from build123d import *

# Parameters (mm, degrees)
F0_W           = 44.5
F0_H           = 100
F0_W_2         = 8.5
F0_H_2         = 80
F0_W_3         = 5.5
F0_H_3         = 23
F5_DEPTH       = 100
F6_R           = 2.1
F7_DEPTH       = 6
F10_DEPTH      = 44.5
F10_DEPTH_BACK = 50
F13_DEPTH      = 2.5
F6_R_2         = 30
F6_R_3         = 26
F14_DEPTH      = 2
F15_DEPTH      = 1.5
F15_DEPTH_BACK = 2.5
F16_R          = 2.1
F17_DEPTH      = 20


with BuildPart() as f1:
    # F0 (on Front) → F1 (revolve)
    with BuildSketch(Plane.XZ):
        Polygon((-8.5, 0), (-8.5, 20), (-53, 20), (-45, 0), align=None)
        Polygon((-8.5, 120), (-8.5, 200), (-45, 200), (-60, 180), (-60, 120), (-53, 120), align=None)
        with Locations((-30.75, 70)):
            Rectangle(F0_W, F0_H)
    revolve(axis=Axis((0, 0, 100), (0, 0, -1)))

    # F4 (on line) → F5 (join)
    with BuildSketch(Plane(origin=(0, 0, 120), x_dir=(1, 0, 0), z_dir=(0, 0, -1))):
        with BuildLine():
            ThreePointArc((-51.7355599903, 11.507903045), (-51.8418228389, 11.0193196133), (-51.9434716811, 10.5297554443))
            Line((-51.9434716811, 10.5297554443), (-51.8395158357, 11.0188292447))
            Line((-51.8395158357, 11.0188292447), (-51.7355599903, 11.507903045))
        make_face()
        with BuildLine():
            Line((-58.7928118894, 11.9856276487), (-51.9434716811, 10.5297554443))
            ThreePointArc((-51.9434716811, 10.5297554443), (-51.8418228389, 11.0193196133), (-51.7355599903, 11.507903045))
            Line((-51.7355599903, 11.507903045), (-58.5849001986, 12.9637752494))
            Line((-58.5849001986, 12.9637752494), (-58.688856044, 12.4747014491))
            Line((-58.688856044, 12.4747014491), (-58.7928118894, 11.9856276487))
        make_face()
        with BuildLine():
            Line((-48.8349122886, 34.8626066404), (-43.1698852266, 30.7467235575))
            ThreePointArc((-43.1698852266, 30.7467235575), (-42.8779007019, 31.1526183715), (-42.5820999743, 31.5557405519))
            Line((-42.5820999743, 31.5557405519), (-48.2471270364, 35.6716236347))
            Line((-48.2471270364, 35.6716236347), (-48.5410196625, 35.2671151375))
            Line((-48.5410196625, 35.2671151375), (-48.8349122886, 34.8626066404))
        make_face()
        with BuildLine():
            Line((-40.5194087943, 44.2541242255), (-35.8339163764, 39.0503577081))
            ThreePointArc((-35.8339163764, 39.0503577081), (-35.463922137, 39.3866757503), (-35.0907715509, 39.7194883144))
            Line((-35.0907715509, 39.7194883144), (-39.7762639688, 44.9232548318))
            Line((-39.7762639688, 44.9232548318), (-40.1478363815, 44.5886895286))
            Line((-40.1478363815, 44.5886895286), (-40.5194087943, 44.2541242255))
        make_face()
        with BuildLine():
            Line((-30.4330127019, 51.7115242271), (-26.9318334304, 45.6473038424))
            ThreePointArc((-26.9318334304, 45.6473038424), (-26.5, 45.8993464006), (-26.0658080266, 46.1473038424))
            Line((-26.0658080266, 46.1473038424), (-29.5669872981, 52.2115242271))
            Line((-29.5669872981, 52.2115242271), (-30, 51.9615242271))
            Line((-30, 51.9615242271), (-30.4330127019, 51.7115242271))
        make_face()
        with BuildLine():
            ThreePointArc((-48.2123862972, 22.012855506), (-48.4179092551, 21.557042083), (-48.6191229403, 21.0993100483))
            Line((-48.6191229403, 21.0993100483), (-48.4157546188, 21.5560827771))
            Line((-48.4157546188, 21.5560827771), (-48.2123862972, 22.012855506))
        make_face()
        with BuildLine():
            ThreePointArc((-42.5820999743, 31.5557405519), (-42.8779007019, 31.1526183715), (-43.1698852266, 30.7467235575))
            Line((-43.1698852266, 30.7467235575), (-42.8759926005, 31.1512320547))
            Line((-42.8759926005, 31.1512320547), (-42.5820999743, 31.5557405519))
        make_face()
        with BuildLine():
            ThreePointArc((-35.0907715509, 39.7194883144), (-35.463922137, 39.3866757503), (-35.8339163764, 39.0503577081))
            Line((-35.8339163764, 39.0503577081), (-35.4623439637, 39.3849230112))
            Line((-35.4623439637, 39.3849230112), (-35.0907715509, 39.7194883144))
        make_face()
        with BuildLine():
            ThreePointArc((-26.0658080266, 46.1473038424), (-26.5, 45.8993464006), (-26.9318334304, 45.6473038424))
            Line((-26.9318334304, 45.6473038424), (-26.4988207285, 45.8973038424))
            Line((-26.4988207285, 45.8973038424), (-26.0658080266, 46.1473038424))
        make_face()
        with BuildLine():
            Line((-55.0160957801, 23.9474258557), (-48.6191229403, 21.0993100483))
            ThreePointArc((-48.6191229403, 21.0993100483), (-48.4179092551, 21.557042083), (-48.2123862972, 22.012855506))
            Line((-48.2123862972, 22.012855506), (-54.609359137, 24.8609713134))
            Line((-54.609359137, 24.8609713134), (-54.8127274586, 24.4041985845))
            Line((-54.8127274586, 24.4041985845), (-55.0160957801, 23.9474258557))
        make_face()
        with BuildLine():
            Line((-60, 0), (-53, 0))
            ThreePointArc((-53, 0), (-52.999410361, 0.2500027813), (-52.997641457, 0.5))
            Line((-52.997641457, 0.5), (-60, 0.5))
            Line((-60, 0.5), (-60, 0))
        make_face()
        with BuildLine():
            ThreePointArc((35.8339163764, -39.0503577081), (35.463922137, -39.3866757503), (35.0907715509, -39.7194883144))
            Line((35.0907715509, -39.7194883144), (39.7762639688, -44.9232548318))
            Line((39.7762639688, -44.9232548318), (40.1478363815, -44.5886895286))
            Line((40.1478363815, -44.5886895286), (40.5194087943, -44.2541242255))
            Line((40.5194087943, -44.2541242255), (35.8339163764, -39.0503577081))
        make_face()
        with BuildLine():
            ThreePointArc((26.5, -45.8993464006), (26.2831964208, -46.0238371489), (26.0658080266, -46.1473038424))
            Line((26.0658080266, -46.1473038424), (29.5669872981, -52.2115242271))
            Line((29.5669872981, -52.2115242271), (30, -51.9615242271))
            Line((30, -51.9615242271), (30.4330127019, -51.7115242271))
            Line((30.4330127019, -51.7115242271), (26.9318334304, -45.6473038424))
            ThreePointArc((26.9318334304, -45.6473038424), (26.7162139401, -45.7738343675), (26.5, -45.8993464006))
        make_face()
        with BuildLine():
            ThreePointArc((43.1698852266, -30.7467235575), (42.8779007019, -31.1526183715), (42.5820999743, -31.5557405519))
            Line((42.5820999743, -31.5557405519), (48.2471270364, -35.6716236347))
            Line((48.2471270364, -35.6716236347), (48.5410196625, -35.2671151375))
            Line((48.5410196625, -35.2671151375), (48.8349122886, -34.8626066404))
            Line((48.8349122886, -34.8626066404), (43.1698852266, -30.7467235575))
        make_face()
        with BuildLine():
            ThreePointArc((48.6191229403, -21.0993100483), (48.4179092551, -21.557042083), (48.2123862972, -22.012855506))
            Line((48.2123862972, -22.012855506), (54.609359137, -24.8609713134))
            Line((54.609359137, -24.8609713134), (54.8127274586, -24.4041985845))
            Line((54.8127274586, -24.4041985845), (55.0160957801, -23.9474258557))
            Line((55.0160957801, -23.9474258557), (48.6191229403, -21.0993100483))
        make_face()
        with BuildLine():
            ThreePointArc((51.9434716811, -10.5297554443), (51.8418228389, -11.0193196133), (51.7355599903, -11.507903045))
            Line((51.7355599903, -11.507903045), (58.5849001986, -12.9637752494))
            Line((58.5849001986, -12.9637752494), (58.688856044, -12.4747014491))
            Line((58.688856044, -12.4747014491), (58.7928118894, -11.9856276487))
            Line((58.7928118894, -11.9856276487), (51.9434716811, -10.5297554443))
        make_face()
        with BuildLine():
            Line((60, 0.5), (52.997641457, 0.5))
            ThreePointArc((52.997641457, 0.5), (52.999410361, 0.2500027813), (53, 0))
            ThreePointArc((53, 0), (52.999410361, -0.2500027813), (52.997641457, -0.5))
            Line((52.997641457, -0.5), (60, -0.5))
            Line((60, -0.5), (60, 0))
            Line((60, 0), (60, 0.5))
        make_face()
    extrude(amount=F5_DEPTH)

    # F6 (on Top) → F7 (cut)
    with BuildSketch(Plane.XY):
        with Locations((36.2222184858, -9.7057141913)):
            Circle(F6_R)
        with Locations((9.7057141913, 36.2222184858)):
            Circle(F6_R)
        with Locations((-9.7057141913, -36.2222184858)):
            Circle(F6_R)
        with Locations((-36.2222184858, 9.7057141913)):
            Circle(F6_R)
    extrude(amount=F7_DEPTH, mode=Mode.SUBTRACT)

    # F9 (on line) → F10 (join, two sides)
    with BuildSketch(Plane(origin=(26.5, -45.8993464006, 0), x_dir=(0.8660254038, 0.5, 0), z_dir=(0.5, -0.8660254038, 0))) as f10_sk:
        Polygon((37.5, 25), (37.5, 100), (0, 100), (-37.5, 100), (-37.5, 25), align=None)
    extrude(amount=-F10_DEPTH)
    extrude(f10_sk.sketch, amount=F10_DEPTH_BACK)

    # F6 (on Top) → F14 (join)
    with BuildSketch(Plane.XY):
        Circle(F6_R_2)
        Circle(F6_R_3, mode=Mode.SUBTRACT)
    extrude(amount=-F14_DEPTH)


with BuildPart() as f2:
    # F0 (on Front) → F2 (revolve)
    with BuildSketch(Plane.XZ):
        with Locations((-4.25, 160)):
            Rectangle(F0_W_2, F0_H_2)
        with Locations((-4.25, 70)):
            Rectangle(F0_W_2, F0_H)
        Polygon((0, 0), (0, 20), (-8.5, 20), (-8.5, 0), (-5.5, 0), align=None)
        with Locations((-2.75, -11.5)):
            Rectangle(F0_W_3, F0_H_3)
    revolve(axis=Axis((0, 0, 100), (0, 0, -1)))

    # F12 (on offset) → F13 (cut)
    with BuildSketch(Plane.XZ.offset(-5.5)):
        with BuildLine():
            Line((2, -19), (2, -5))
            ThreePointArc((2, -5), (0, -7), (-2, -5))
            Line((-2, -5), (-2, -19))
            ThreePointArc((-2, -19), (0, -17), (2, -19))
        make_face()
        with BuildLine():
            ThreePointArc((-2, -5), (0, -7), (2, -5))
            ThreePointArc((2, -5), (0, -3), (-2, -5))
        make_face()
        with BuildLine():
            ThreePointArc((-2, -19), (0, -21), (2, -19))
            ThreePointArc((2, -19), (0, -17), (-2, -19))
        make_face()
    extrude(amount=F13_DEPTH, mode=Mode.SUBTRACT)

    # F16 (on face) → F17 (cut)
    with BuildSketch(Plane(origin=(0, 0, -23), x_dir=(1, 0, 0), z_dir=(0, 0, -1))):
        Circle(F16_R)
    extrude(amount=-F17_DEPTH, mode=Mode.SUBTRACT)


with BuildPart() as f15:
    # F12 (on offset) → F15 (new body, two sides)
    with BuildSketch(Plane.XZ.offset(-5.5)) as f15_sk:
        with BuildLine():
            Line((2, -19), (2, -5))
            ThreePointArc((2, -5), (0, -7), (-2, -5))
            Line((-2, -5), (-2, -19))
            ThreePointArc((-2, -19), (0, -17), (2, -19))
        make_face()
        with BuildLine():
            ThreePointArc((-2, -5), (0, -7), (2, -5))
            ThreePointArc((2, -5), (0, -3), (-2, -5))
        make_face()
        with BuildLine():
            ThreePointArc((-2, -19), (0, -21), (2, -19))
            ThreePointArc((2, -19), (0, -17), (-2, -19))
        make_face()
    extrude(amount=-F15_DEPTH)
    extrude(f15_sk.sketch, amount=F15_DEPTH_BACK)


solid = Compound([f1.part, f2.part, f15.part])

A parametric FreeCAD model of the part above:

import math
import FreeCAD as App
import Part
import Sketcher
Q = App.Units.Quantity

doc = App.newDocument("Part")
params = doc.addObject("Spreadsheet::Sheet", "Params")
for row, (alias, value) in enumerate([
    ("sketch1_width", "7 mm"),
    ("sketch1_height", "200 mm"),
    ("sketch1_height2", "60 mm"),
    ("sketch1_height3", "100 mm"),
    ("sketch1_length", "25 mm"),
    ("revolution_angle", "360 deg"),
    ("sketch2_radius", "52.999998 mm"),
    ("sketch2_width", "7 mm"),
    ("sketch2_height", "1 mm"),
    ("sketch2_length", "1 mm"),
    ("sketch2_length2", "0.5 mm"),
    ("pad1_length", "100 mm"),
    ("sketch3_diameter", "4.2 mm"),
    ("pocket1_length", "6 mm"),
    ("sketch4_width", "75 mm"),
    ("pad2_length", "44.5 mm"),
    ("pad2_length2", "50 mm"),
    ("sketch5_diameter", "60 mm"),
    ("sketch5_diameter2", "52 mm"),
    ("pad3_length", "2 mm"),
    ("sketch6_width", "3 mm"),
    ("sketch6_height", "200 mm"),
    ("sketch6_height2", "23 mm"),
    ("sketch6_width2", "5.5 mm"),
    ("revolution2_angle", "360 deg"),
    ("sketch7_radius", "2 mm"),
    ("sketch7_height", "14 mm"),
    ("pocket2_length", "2.5 mm"),
    ("sketch8_diameter", "4.2 mm"),
    ("pocket3_length", "20 mm"),
    ("sketch9_radius", "2 mm"),
    ("sketch9_height", "14 mm"),
    ("pad4_length", "1.5 mm"),
    ("pad4_length2", "2.5 mm"),
], start=1):
    params.set(f"A{row}", alias)
    params.set(f"B{row}", "=" + value)
    params.setAlias(f"B{row}", alias)

body = doc.addObject("PartDesign::Body", "Body")

# Sketch on XZ plane
sketch1 = doc.addObject("Sketcher::SketchObject", "Sketch")
body.addObject(sketch1)
sketch1.AttachmentSupport = (doc.XZ_Plane, [""])
sketch1.MapMode = "FlatFace"
sketch1.addGeometry(Part.LineSegment(App.Vector(-45, 0, 0), App.Vector(-8, 0, 0)), False)
sketch1.addGeometry(Part.LineSegment(App.Vector(-8, 0, 0), App.Vector(-8, 200, 0)), False)
sketch1.addGeometry(Part.LineSegment(App.Vector(-8, 200, 0), App.Vector(-45, 200, 0)), False)
sketch1.addGeometry(Part.LineSegment(App.Vector(-45, 200, 0), App.Vector(-60, 180, 0)), False)
sketch1.addGeometry(Part.LineSegment(App.Vector(-60, 180, 0), App.Vector(-60, 120, 0)), False)
sketch1.addGeometry(Part.LineSegment(App.Vector(-60, 120, 0), App.Vector(-53, 120, 0)), False)
sketch1.addGeometry(Part.LineSegment(App.Vector(-53, 120, 0), App.Vector(-53, 20, 0)), False)
sketch1.addGeometry(Part.LineSegment(App.Vector(-53, 20, 0), App.Vector(-45, 0, 0)), False)
sketch1.addConstraint(Sketcher.Constraint("Coincident", 0, 2, 1, 1))
sketch1.addConstraint(Sketcher.Constraint("Coincident", 1, 2, 2, 1))
sketch1.addConstraint(Sketcher.Constraint("Coincident", 2, 2, 3, 1))
sketch1.addConstraint(Sketcher.Constraint("Coincident", 3, 2, 4, 1))
sketch1.addConstraint(Sketcher.Constraint("Coincident", 4, 2, 5, 1))
sketch1.addConstraint(Sketcher.Constraint("Coincident", 5, 2, 6, 1))
sketch1.addConstraint(Sketcher.Constraint("Coincident", 6, 2, 7, 1))
sketch1.addConstraint(Sketcher.Constraint("Coincident", 7, 2, 0, 1))
sketch1.addConstraint(Sketcher.Constraint("Horizontal", 0))
sketch1.addConstraint(Sketcher.Constraint("Vertical", 1))
sketch1.addConstraint(Sketcher.Constraint("Horizontal", 2))
sketch1.addConstraint(Sketcher.Constraint("Vertical", 4))
sketch1.addConstraint(Sketcher.Constraint("Horizontal", 5))
sketch1.addConstraint(Sketcher.Constraint("Vertical", 6))
sketch1.addConstraint(Sketcher.Constraint("PointOnObject", 0, 2, -1))
sketch1.addConstraint(Sketcher.Constraint("Vertical", 2, 2, 7, 2))
sketch1.addConstraint(Sketcher.Constraint("DistanceX", 5, 1, 5, 2, Q("7 mm")))
sketch1.addConstraint(Sketcher.Constraint("DistanceY", 1, 1, 1, 2, Q("200 mm")))
sketch1.addConstraint(Sketcher.Constraint("DistanceY", 4, 2, 4, 1, Q("60 mm")))
sketch1.addConstraint(Sketcher.Constraint("DistanceY", 6, 2, 6, 1, Q("100 mm")))
sketch1.addConstraint(Sketcher.Constraint("Distance", 3, Q("25 mm")))
sketch1.addConstraint(Sketcher.Constraint("DistanceX", 0, 1, 0, 2, Q("36.5 mm")))
sketch1.addConstraint(Sketcher.Constraint("DistanceX", 2, 2, -1, 1, Q("45 mm")))
sketch1.addConstraint(Sketcher.Constraint("DistanceX", 3, 2, -1, 1, Q("60 mm")))
sketch1.setExpression("Constraints[16]", "Params.sketch1_width")
sketch1.setExpression("Constraints[17]", "Params.sketch1_height")
sketch1.setExpression("Constraints[18]", "Params.sketch1_height2")
sketch1.setExpression("Constraints[19]", "Params.sketch1_height3")
sketch1.setExpression("Constraints[20]", "Params.sketch1_length")
revolution = doc.addObject("PartDesign::Revolution", "Revolution")
body.addObject(revolution)
revolution.Profile = sketch1
revolution.ReferenceAxis = (sketch1, ["V_Axis"])
revolution.setExpression("Angle", "Params.revolution_angle")

# Sketch on XY plane
sketch2 = doc.addObject("Sketcher::SketchObject", "Sketch001")
body.addObject(sketch2)
sketch2.AttachmentSupport = (doc.XY_Plane, [""])
sketch2.MapMode = "FlatFace"
sketch2.AttachmentOffset = App.Placement(App.Vector(0, 0, 120), App.Rotation())
sketch2.addGeometry(Part.LineSegment(App.Vector(-51.94, -10.53, 0), App.Vector(-51.84, -11.02, 0)), False)
sketch2.addGeometry(Part.LineSegment(App.Vector(-51.84, -11.02, 0), App.Vector(-51.74, -11.51, 0)), False)
sketch2.addGeometry(Part.LineSegment(App.Vector(-51.74, -11.51, 0), App.Vector(-58.58, -12.96, 0)), False)
sketch2.addGeometry(Part.LineSegment(App.Vector(-58.58, -12.96, 0), App.Vector(-58.69, -12.47, 0)), False)
sketch2.addGeometry(Part.LineSegment(App.Vector(-58.69, -12.47, 0), App.Vector(-58.79, -11.99, 0)), False)
sketch2.addGeometry(Part.LineSegment(App.Vector(-58.79, -11.99, 0), App.Vector(-51.94, -10.53, 0)), False)
sketch2.addGeometry(Part.LineSegment(App.Vector(-48.83, -34.86, 0), App.Vector(-43.17, -30.75, 0)), False)
sketch2.addGeometry(Part.LineSegment(App.Vector(-43.17, -30.75, 0), App.Vector(-42.88, -31.15, 0)), False)
sketch2.addGeometry(Part.LineSegment(App.Vector(-42.88, -31.15, 0), App.Vector(-42.58, -31.56, 0)), False)
sketch2.addGeometry(Part.LineSegment(App.Vector(-42.58, -31.56, 0), App.Vector(-48.25, -35.67, 0)), False)
sketch2.addGeometry(Part.LineSegment(App.Vector(-48.25, -35.67, 0), App.Vector(-48.54, -35.27, 0)), False)
sketch2.addGeometry(Part.LineSegment(App.Vector(-48.54, -35.27, 0), App.Vector(-48.83, -34.86, 0)), False)
sketch2.addGeometry(Part.LineSegment(App.Vector(-40.52, -44.25, 0), App.Vector(-35.83, -39.05, 0)), False)
sketch2.addGeometry(Part.LineSegment(App.Vector(-35.83, -39.05, 0), App.Vector(-35.46, -39.38, 0)), False)
sketch2.addGeometry(Part.LineSegment(App.Vector(-35.46, -39.38, 0), App.Vector(-35.09, -39.72, 0)), False)
sketch2.addGeometry(Part.LineSegment(App.Vector(-35.09, -39.72, 0), App.Vector(-39.78, -44.92, 0)), False)
sketch2.addGeometry(Part.LineSegment(App.Vector(-39.78, -44.92, 0), App.Vector(-40.15, -44.59, 0)), False)
sketch2.addGeometry(Part.LineSegment(App.Vector(-40.15, -44.59, 0), App.Vector(-40.52, -44.25, 0)), False)
sketch2.addGeometry(Part.LineSegment(App.Vector(-30.43, -51.71, 0), App.Vector(-26.93, -45.65, 0)), False)
sketch2.addGeometry(Part.LineSegment(App.Vector(-26.93, -45.65, 0), App.Vector(-26.07, -46.15, 0)), False)
sketch2.addGeometry(Part.LineSegment(App.Vector(-26.07, -46.15, 0), App.Vector(-29.57, -52.21, 0)), False)
sketch2.addGeometry(Part.LineSegment(App.Vector(-29.57, -52.21, 0), App.Vector(-30.43, -51.71, 0)), False)
sketch2.addGeometry(Part.LineSegment(App.Vector(-48.62, -21.1, 0), App.Vector(-48.42, -21.56, 0)), False)
sketch2.addGeometry(Part.LineSegment(App.Vector(-48.42, -21.56, 0), App.Vector(-48.21, -22.01, 0)), False)
sketch2.addGeometry(Part.LineSegment(App.Vector(-48.21, -22.01, 0), App.Vector(-54.61, -24.86, 0)), False)
sketch2.addGeometry(Part.LineSegment(App.Vector(-54.61, -24.86, 0), App.Vector(-54.81, -24.4, 0)), False)
sketch2.addGeometry(Part.LineSegment(App.Vector(-54.81, -24.4, 0), App.Vector(-55.02, -23.95, 0)), False)
sketch2.addGeometry(Part.LineSegment(App.Vector(-55.02, -23.95, 0), App.Vector(-48.62, -21.1, 0)), False)
sketch2.addGeometry(Part.LineSegment(App.Vector(-60, 0, 0), App.Vector(-53, 0, 0)), False)
sketch2.addGeometry(Part.ArcOfCircle(Part.Circle(App.Vector(0, 0, 0), App.Vector(0, 0, 1), 53), math.radians(180), math.radians(180.54)), False)
sketch2.addGeometry(Part.LineSegment(App.Vector(-53, -0.5, 0), App.Vector(-60, -0.5, 0)), False)
sketch2.addGeometry(Part.LineSegment(App.Vector(-60, -0.5, 0), App.Vector(-60, 0, 0)), False)
sketch2.addGeometry(Part.ArcOfCircle(Part.Circle(App.Vector(0, 0, 0), App.Vector(0, 0, 1), 53), math.radians(47.46), math.radians(48.54)), False)
sketch2.addGeometry(Part.LineSegment(App.Vector(35.09, 39.72, 0), App.Vector(39.78, 44.92, 0)), False)
sketch2.addGeometry(Part.LineSegment(App.Vector(39.78, 44.92, 0), App.Vector(40.15, 44.59, 0)), False)
sketch2.addGeometry(Part.LineSegment(App.Vector(40.15, 44.59, 0), App.Vector(40.52, 44.25, 0)), False)
sketch2.addGeometry(Part.LineSegment(App.Vector(40.52, 44.25, 0), App.Vector(35.83, 39.05, 0)), False)
sketch2.addGeometry(Part.ArcOfCircle(Part.Circle(App.Vector(0, 0, 0), App.Vector(0, 0, 1), 53), math.radians(60), math.radians(60.54)), False)
sketch2.addGeometry(Part.LineSegment(App.Vector(26.07, 46.15, 0), App.Vector(29.57, 52.21, 0)), False)
sketch2.addGeometry(Part.LineSegment(App.Vector(29.57, 52.21, 0), App.Vector(30.43, 51.71, 0)), False)
sketch2.addGeometry(Part.LineSegment(App.Vector(30.43, 51.71, 0), App.Vector(26.93, 45.65, 0)), False)
sketch2.addGeometry(Part.ArcOfCircle(Part.Circle(App.Vector(0, 0, 0), App.Vector(0, 0, 1), 53), math.radians(59.46), math.radians(60)), False)
sketch2.addGeometry(Part.ArcOfCircle(Part.Circle(App.Vector(0, 0, 0), App.Vector(0, 0, 1), 53), math.radians(35.46), math.radians(36.54)), False)
sketch2.addGeometry(Part.LineSegment(App.Vector(42.58, 31.56, 0), App.Vector(48.25, 35.67, 0)), False)
sketch2.addGeometry(Part.LineSegment(App.Vector(48.25, 35.67, 0), App.Vector(48.54, 35.27, 0)), False)
sketch2.addGeometry(Part.LineSegment(App.Vector(48.54, 35.27, 0), App.Vector(48.83, 34.86, 0)), False)
sketch2.addGeometry(Part.LineSegment(App.Vector(48.83, 34.86, 0), App.Vector(43.17, 30.75, 0)), False)
sketch2.addGeometry(Part.ArcOfCircle(Part.Circle(App.Vector(0, 0, 0), App.Vector(0, 0, 1), 53), math.radians(23.46), math.radians(24.54)), False)
sketch2.addGeometry(Part.LineSegment(App.Vector(48.21, 22.01, 0), App.Vector(54.61, 24.86, 0)), False)
sketch2.addGeometry(Part.LineSegment(App.Vector(54.61, 24.86, 0), App.Vector(54.81, 24.4, 0)), False)
sketch2.addGeometry(Part.LineSegment(App.Vector(54.81, 24.4, 0), App.Vector(55.02, 23.95, 0)), False)
sketch2.addGeometry(Part.LineSegment(App.Vector(55.02, 23.95, 0), App.Vector(48.62, 21.1, 0)), False)
sketch2.addGeometry(Part.ArcOfCircle(Part.Circle(App.Vector(0, 0, 0), App.Vector(0, 0, 1), 53), math.radians(11.46), math.radians(12.54)), False)
sketch2.addGeometry(Part.LineSegment(App.Vector(51.74, 11.51, 0), App.Vector(58.58, 12.96, 0)), False)
sketch2.addGeometry(Part.LineSegment(App.Vector(58.58, 12.96, 0), App.Vector(58.69, 12.47, 0)), False)
sketch2.addGeometry(Part.LineSegment(App.Vector(58.69, 12.47, 0), App.Vector(58.79, 11.99, 0)), False)
sketch2.addGeometry(Part.LineSegment(App.Vector(58.79, 11.99, 0), App.Vector(51.94, 10.53, 0)), False)
sketch2.addGeometry(Part.LineSegment(App.Vector(60, -0.5, 0), App.Vector(53, -0.5, 0)), False)
sketch2.addGeometry(Part.ArcOfCircle(Part.Circle(App.Vector(0, 0, 0), App.Vector(0, 0, 1), 53), math.radians(-0.54), math.radians(0)), False)
sketch2.addGeometry(Part.ArcOfCircle(Part.Circle(App.Vector(0, 0, 0), App.Vector(0, 0, 1), 53), math.radians(0), math.radians(0.54)), False)
sketch2.addGeometry(Part.LineSegment(App.Vector(53, 0.5, 0), App.Vector(60, 0.5, 0)), False)
sketch2.addGeometry(Part.LineSegment(App.Vector(60, 0.5, 0), App.Vector(60, -0.5, 0)), False)
sketch2.addConstraint(Sketcher.Constraint("Coincident", 0, 2, 1, 1))
sketch2.addConstraint(Sketcher.Constraint("Coincident", 1, 2, 2, 1))
sketch2.addConstraint(Sketcher.Constraint("Coincident", 2, 2, 3, 1))
sketch2.addConstraint(Sketcher.Constraint("Coincident", 3, 2, 4, 1))
sketch2.addConstraint(Sketcher.Constraint("Coincident", 4, 2, 5, 1))
sketch2.addConstraint(Sketcher.Constraint("Coincident", 5, 2, 0, 1))
sketch2.addConstraint(Sketcher.Constraint("Coincident", 6, 2, 7, 1))
sketch2.addConstraint(Sketcher.Constraint("Coincident", 7, 2, 8, 1))
sketch2.addConstraint(Sketcher.Constraint("Coincident", 8, 2, 9, 1))
sketch2.addConstraint(Sketcher.Constraint("Coincident", 9, 2, 10, 1))
sketch2.addConstraint(Sketcher.Constraint("Coincident", 10, 2, 11, 1))
sketch2.addConstraint(Sketcher.Constraint("Coincident", 11, 2, 6, 1))
sketch2.addConstraint(Sketcher.Constraint("Coincident", 12, 2, 13, 1))
sketch2.addConstraint(Sketcher.Constraint("Coincident", 13, 2, 14, 1))
sketch2.addConstraint(Sketcher.Constraint("Coincident", 14, 2, 15, 1))
sketch2.addConstraint(Sketcher.Constraint("Coincident", 15, 2, 16, 1))
sketch2.addConstraint(Sketcher.Constraint("Coincident", 16, 2, 17, 1))
sketch2.addConstraint(Sketcher.Constraint("Coincident", 17, 2, 12, 1))
sketch2.addConstraint(Sketcher.Constraint("Coincident", 18, 2, 19, 1))
sketch2.addConstraint(Sketcher.Constraint("Coincident", 19, 2, 20, 1))
sketch2.addConstraint(Sketcher.Constraint("Coincident", 20, 2, 21, 1))
sketch2.addConstraint(Sketcher.Constraint("Coincident", 21, 2, 18, 1))
sketch2.addConstraint(Sketcher.Constraint("Coincident", 22, 2, 23, 1))
sketch2.addConstraint(Sketcher.Constraint("Coincident", 23, 2, 24, 1))
sketch2.addConstraint(Sketcher.Constraint("Coincident", 24, 2, 25, 1))
sketch2.addConstraint(Sketcher.Constraint("Coincident", 25, 2, 26, 1))
sketch2.addConstraint(Sketcher.Constraint("Coincident", 26, 2, 27, 1))
sketch2.addConstraint(Sketcher.Constraint("Coincident", 27, 2, 22, 1))
sketch2.addConstraint(Sketcher.Constraint("Coincident", 28, 2, 29, 1))
sketch2.addConstraint(Sketcher.Constraint("Coincident", 29, 2, 30, 1))
sketch2.addConstraint(Sketcher.Constraint("Coincident", 30, 2, 31, 1))
sketch2.addConstraint(Sketcher.Constraint("Coincident", 31, 2, 28, 1))
sketch2.addConstraint(Sketcher.Constraint("Coincident", 32, 2, 33, 1))
sketch2.addConstraint(Sketcher.Constraint("Coincident", 33, 2, 34, 1))
sketch2.addConstraint(Sketcher.Constraint("Coincident", 34, 2, 35, 1))
sketch2.addConstraint(Sketcher.Constraint("Coincident", 35, 2, 36, 1))
sketch2.addConstraint(Sketcher.Constraint("Coincident", 36, 2, 32, 1))
sketch2.addConstraint(Sketcher.Constraint("Coincident", 37, 2, 38, 1))
sketch2.addConstraint(Sketcher.Constraint("Coincident", 38, 2, 39, 1))
sketch2.addConstraint(Sketcher.Constraint("Coincident", 39, 2, 40, 1))
sketch2.addConstraint(Sketcher.Constraint("Coincident", 40, 2, 41, 1))
sketch2.addConstraint(Sketcher.Constraint("Tangent", 41, 2, 37, 1))
sketch2.addConstraint(Sketcher.Constraint("Coincident", 42, 2, 43, 1))
sketch2.addConstraint(Sketcher.Constraint("Coincident", 43, 2, 44, 1))
sketch2.addConstraint(Sketcher.Constraint("Coincident", 44, 2, 45, 1))
sketch2.addConstraint(Sketcher.Constraint("Coincident", 45, 2, 46, 1))
sketch2.addConstraint(Sketcher.Constraint("Coincident", 46, 2, 42, 1))
sketch2.addConstraint(Sketcher.Constraint("Coincident", 47, 2, 48, 1))
sketch2.addConstraint(Sketcher.Constraint("Coincident", 48, 2, 49, 1))
sketch2.addConstraint(Sketcher.Constraint("Coincident", 49, 2, 50, 1))
sketch2.addConstraint(Sketcher.Constraint("Coincident", 50, 2, 51, 1))
sketch2.addConstraint(Sketcher.Constraint("Coincident", 51, 2, 47, 1))
sketch2.addConstraint(Sketcher.Constraint("Coincident", 52, 2, 53, 1))
sketch2.addConstraint(Sketcher.Constraint("Coincident", 53, 2, 54, 1))
sketch2.addConstraint(Sketcher.Constraint("Coincident", 54, 2, 55, 1))
sketch2.addConstraint(Sketcher.Constraint("Coincident", 55, 2, 56, 1))
sketch2.addConstraint(Sketcher.Constraint("Coincident", 56, 2, 52, 1))
sketch2.addConstraint(Sketcher.Constraint("Coincident", 57, 2, 58, 1))
sketch2.addConstraint(Sketcher.Constraint("Tangent", 58, 2, 59, 1))
sketch2.addConstraint(Sketcher.Constraint("Coincident", 59, 2, 60, 1))
sketch2.addConstraint(Sketcher.Constraint("Coincident", 60, 2, 61, 1))
sketch2.addConstraint(Sketcher.Constraint("Coincident", 61, 2, 57, 1))
sketch2.addConstraint(Sketcher.Constraint("Horizontal", 28))
sketch2.addConstraint(Sketcher.Constraint("Horizontal", 30))
sketch2.addConstraint(Sketcher.Constraint("Vertical", 31))
sketch2.addConstraint(Sketcher.Constraint("Horizontal", 57))
sketch2.addConstraint(Sketcher.Constraint("Horizontal", 60))
sketch2.addConstraint(Sketcher.Constraint("Vertical", 61))
sketch2.addConstraint(Sketcher.Constraint("Coincident", 29, 3, -1, 1))
sketch2.addConstraint(Sketcher.Constraint("Coincident", 32, 3, -1, 1))
sketch2.addConstraint(Sketcher.Constraint("Coincident", 37, 3, -1, 1))
sketch2.addConstraint(Sketcher.Constraint("Coincident", 42, 3, -1, 1))
sketch2.addConstraint(Sketcher.Constraint("Coincident", 47, 3, -1, 1))
sketch2.addConstraint(Sketcher.Constraint("Coincident", 52, 3, -1, 1))
sketch2.addConstraint(Sketcher.Constraint("Coincident", 58, 3, -1, 1))
sketch2.addConstraint(Sketcher.Constraint("Equal", 29, 32))
sketch2.addConstraint(Sketcher.Constraint("Equal", 32, 37))
sketch2.addConstraint(Sketcher.Constraint("Equal", 37, 42))
sketch2.addConstraint(Sketcher.Constraint("Equal", 42, 47))
sketch2.addConstraint(Sketcher.Constraint("Equal", 47, 52))
sketch2.addConstraint(Sketcher.Constraint("Equal", 47, 58))
sketch2.addConstraint(Sketcher.Constraint("Equal", 58, 59))
sketch2.addConstraint(Sketcher.Constraint("Symmetric", 14, 2, 32, 2, -1, 1))
sketch2.addConstraint(Sketcher.Constraint("Symmetric", 15, 2, 33, 2, -1, 1))
sketch2.addConstraint(Sketcher.Constraint("Symmetric", 16, 2, 34, 2, -1, 1))
sketch2.addConstraint(Sketcher.Constraint("Symmetric", 17, 2, 35, 2, -1, 1))
sketch2.addConstraint(Sketcher.Constraint("Symmetric", 12, 2, 36, 2, -1, 1))
sketch2.addConstraint(Sketcher.Constraint("Symmetric", 19, 2, 37, 2, -1, 1))
sketch2.addConstraint(Sketcher.Constraint("Symmetric", 20, 2, 38, 2, -1, 1))
sketch2.addConstraint(Sketcher.Constraint("Symmetric", 21, 2, 39, 2, -1, 1))
sketch2.addConstraint(Sketcher.Constraint("Symmetric", 18, 2, 40, 2, -1, 1))
sketch2.addConstraint(Sketcher.Constraint("Symmetric", 8, 2, 42, 2, -1, 1))
sketch2.addConstraint(Sketcher.Constraint("Symmetric", 9, 2, 43, 2, -1, 1))
sketch2.addConstraint(Sketcher.Constraint("Symmetric", 10, 2, 44, 2, -1, 1))
sketch2.addConstraint(Sketcher.Constraint("Symmetric", 11, 2, 45, 2, -1, 1))
sketch2.addConstraint(Sketcher.Constraint("Symmetric", 6, 2, 46, 2, -1, 1))
sketch2.addConstraint(Sketcher.Constraint("Symmetric", 23, 2, 47, 2, -1, 1))
sketch2.addConstraint(Sketcher.Constraint("Symmetric", 24, 2, 48, 2, -1, 1))
sketch2.addConstraint(Sketcher.Constraint("Symmetric", 25, 2, 49, 2, -1, 1))
sketch2.addConstraint(Sketcher.Constraint("Symmetric", 26, 2, 50, 2, -1, 1))
sketch2.addConstraint(Sketcher.Constraint("Symmetric", 27, 2, 51, 2, -1, 1))
sketch2.addConstraint(Sketcher.Constraint("Symmetric", 1, 2, 52, 2, -1, 1))
sketch2.addConstraint(Sketcher.Constraint("Symmetric", 2, 2, 53, 2, -1, 1))
sketch2.addConstraint(Sketcher.Constraint("Symmetric", 3, 2, 54, 2, -1, 1))
sketch2.addConstraint(Sketcher.Constraint("Symmetric", 4, 2, 55, 2, -1, 1))
sketch2.addConstraint(Sketcher.Constraint("Symmetric", 5, 2, 56, 2, -1, 1))
sketch2.addConstraint(Sketcher.Constraint("Symmetric", 30, 2, 60, 2, -1, 1))
sketch2.addConstraint(Sketcher.Constraint("PointOnObject", 28, 2, -1))
sketch2.addConstraint(Sketcher.Constraint("PointOnObject", 58, 2, -1))
sketch2.addConstraint(Sketcher.Constraint("Parallel", 0, 1))
sketch2.addConstraint(Sketcher.Constraint("Perpendicular", 1, 2))
sketch2.addConstraint(Sketcher.Constraint("Perpendicular", 2, 3))
sketch2.addConstraint(Sketcher.Constraint("Parallel", 3, 4))
sketch2.addConstraint(Sketcher.Constraint("Perpendicular", 4, 5))
sketch2.addConstraint(Sketcher.Constraint("Perpendicular", 6, 7))
sketch2.addConstraint(Sketcher.Constraint("Parallel", 7, 8))
sketch2.addConstraint(Sketcher.Constraint("Perpendicular", 8, 9))
sketch2.addConstraint(Sketcher.Constraint("Perpendicular", 9, 10))
sketch2.addConstraint(Sketcher.Constraint("Parallel", 10, 11))
sketch2.addConstraint(Sketcher.Constraint("Perpendicular", 12, 13))
sketch2.addConstraint(Sketcher.Constraint("Parallel", 13, 14))
sketch2.addConstraint(Sketcher.Constraint("Perpendicular", 14, 15))
sketch2.addConstraint(Sketcher.Constraint("Perpendicular", 15, 16))
sketch2.addConstraint(Sketcher.Constraint("Parallel", 16, 17))
sketch2.addConstraint(Sketcher.Constraint("Perpendicular", 18, 19))
sketch2.addConstraint(Sketcher.Constraint("Perpendicular", 19, 20))
sketch2.addConstraint(Sketcher.Constraint("Perpendicular", 20, 21))
sketch2.addConstraint(Sketcher.Constraint("Parallel", 22, 23))
sketch2.addConstraint(Sketcher.Constraint("Perpendicular", 23, 24))
sketch2.addConstraint(Sketcher.Constraint("Perpendicular", 24, 25))
sketch2.addConstraint(Sketcher.Constraint("Parallel", 25, 26))
sketch2.addConstraint(Sketcher.Constraint("Perpendicular", 26, 27))
sketch2.addConstraint(Sketcher.Constraint("Horizontal", 30, 2, 57, 2))
sketch2.addConstraint(Sketcher.Constraint("Equal", 0, 1))
sketch2.addConstraint(Sketcher.Constraint("Equal", 1, 3))
sketch2.addConstraint(Sketcher.Constraint("Equal", 5, 6))
sketch2.addConstraint(Sketcher.Constraint("Equal", 4, 7))
sketch2.addConstraint(Sketcher.Constraint("Equal", 7, 8))
sketch2.addConstraint(Sketcher.Constraint("Equal", 8, 10))
sketch2.addConstraint(Sketcher.Constraint("Equal", 9, 12))
sketch2.addConstraint(Sketcher.Constraint("Equal", 11, 13))
sketch2.addConstraint(Sketcher.Constraint("Equal", 13, 14))
sketch2.addConstraint(Sketcher.Constraint("Equal", 14, 16))
sketch2.addConstraint(Sketcher.Constraint("Equal", 15, 18))
sketch2.addConstraint(Sketcher.Constraint("Equal", 17, 22))
sketch2.addConstraint(Sketcher.Constraint("Equal", 22, 23))
sketch2.addConstraint(Sketcher.Constraint("Equal", 20, 24))
sketch2.addConstraint(Sketcher.Constraint("Equal", 23, 25))
sketch2.addConstraint(Sketcher.Constraint("Radius", 29, Q("52.999998 mm")))
sketch2.addConstraint(Sketcher.Constraint("DistanceX", 28, 1, 28, 2, Q("7 mm")))
sketch2.addConstraint(Sketcher.Constraint("DistanceY", 61, 2, 61, 1, Q("1 mm")))
sketch2.addConstraint(Sketcher.Constraint("Angle", 2, Q("-168 deg")))
sketch2.addConstraint(Sketcher.Constraint("Angle", 6, Q("36 deg")))
sketch2.addConstraint(Sketcher.Constraint("Angle", 12, Q("48 deg")))
sketch2.addConstraint(Sketcher.Constraint("Angle", 18, Q("60 deg")))
sketch2.addConstraint(Sketcher.Constraint("Angle", 24, Q("-156 deg")))
sketch2.addConstraint(Sketcher.Constraint("Distance", 19, Q("1 mm")))
sketch2.addConstraint(Sketcher.Constraint("Distance", 0, Q("0.5 mm")))
sketch2.addConstraint(Sketcher.Constraint("DistanceX", -1, 1, 41, 2, Q("26.5 mm")))
sketch2.addConstraint(Sketcher.Constraint("Radius", 41, Q("53.000005 mm")))
sketch2.addConstraint(Sketcher.Constraint("DistanceX", 2, 2, -1, 1, Q("58.5849 mm")))
sketch2.setExpression("Constraints[148]", "Params.sketch2_radius")
sketch2.setExpression("Constraints[149]", "Params.sketch2_width")
sketch2.setExpression("Constraints[150]", "Params.sketch2_height")
sketch2.setExpression("Constraints[156]", "Params.sketch2_length")
sketch2.setExpression("Constraints[157]", "Params.sketch2_length2")
pad1 = doc.addObject("PartDesign::Pad", "Pad")
body.addObject(pad1)
pad1.Profile = sketch2
pad1.setExpression("Length", "Params.pad1_length")
pad1.Reversed = True

# Sketch on XY plane
sketch3 = doc.addObject("Sketcher::SketchObject", "Sketch002")
body.addObject(sketch3)
sketch3.AttachmentSupport = (doc.XY_Plane, [""])
sketch3.MapMode = "FlatFace"
sketch3.addGeometry(Part.Circle(App.Vector(36.2, -9.7, 0), App.Vector(0, 0, 1), 2.1), False)
sketch3.addGeometry(Part.Circle(App.Vector(9.7, 36.2, 0), App.Vector(0, 0, 1), 2.1), False)
sketch3.addGeometry(Part.Circle(App.Vector(-9.7, -36.2, 0), App.Vector(0, 0, 1), 2.1), False)
sketch3.addGeometry(Part.Circle(App.Vector(-36.2, 9.7, 0), App.Vector(0, 0, 1), 2.1), False)
sketch3.addConstraint(Sketcher.Constraint("Equal", 0, 1))
sketch3.addConstraint(Sketcher.Constraint("Equal", 1, 2))
sketch3.addConstraint(Sketcher.Constraint("Equal", 2, 3))
sketch3.addConstraint(Sketcher.Constraint("Symmetric", 1, 3, 2, 3, -1, 1))
sketch3.addConstraint(Sketcher.Constraint("Symmetric", 0, 3, 3, 3, -1, 1))
sketch3.addConstraint(Sketcher.Constraint("Diameter", 0, Q("4.2 mm")))
sketch3.addConstraint(Sketcher.Constraint("DistanceX", -1, 1, 0, 3, Q("36.222218 mm")))
sketch3.addConstraint(Sketcher.Constraint("DistanceY", -1, 1, 1, 3, Q("36.222218 mm")))
sketch3.addConstraint(Sketcher.Constraint("DistanceX", 2, 3, 1, 3, Q("19.411428 mm")))
sketch3.addConstraint(Sketcher.Constraint("DistanceY", 0, 3, 3, 3, Q("19.411428 mm")))
sketch3.setExpression("Constraints[5]", "Params.sketch3_diameter")
pocket1 = doc.addObject("PartDesign::Pocket", "Pocket")
body.addObject(pocket1)
pocket1.Profile = sketch3
pocket1.setExpression("Length", "Params.pocket1_length")
pocket1.Reversed = True

# Sketch on an angled plane
sketch4 = doc.addObject("Sketcher::SketchObject", "Sketch003")
body.addObject(sketch4)
sketch4.Placement = App.Placement(App.Vector(26.5, -45.899346, 0), App.Rotation(App.Vector(0.866025404, 0.5, 0), App.Vector(0, 0, 1), App.Vector(0.5, -0.866025404, 0), "ZXY"))
sketch4.addGeometry(Part.LineSegment(App.Vector(38, 25, 0), App.Vector(38, 100, 0)), False)
sketch4.addGeometry(Part.LineSegment(App.Vector(38, 100, 0), App.Vector(-38, 100, 0)), False)
sketch4.addGeometry(Part.LineSegment(App.Vector(-38, 100, 0), App.Vector(-38, 25, 0)), False)
sketch4.addGeometry(Part.LineSegment(App.Vector(-38, 25, 0), App.Vector(38, 25, 0)), False)
sketch4.addConstraint(Sketcher.Constraint("Coincident", 0, 2, 1, 1))
sketch4.addConstraint(Sketcher.Constraint("Coincident", 1, 2, 2, 1))
sketch4.addConstraint(Sketcher.Constraint("Coincident", 2, 2, 3, 1))
sketch4.addConstraint(Sketcher.Constraint("Coincident", 3, 2, 0, 1))
sketch4.addConstraint(Sketcher.Constraint("Vertical", 0))
sketch4.addConstraint(Sketcher.Constraint("Horizontal", 1))
sketch4.addConstraint(Sketcher.Constraint("Vertical", 2))
sketch4.addConstraint(Sketcher.Constraint("Horizontal", 3))
sketch4.addConstraint(Sketcher.Constraint("Equal", 3, 0))
sketch4.addConstraint(Sketcher.Constraint("DistanceX", 1, 2, 1, 1, Q("75 mm")))
sketch4.addConstraint(Sketcher.Constraint("DistanceY", -1, 1, 0, 2, Q("100 mm")))
sketch4.addConstraint(Sketcher.Constraint("DistanceX", -1, 1, 0, 2, Q("37.5 mm")))
sketch4.setExpression("Constraints[9]", "Params.sketch4_width")
pad2 = doc.addObject("PartDesign::Pad", "Pad001")
body.addObject(pad2)
pad2.Profile = sketch4
pad2.Type = "TwoLengths"
pad2.setExpression("Length", "Params.pad2_length")
pad2.setExpression("Length2", "Params.pad2_length2")
pad2.Reversed = True

# Sketch on XY plane
sketch5 = doc.addObject("Sketcher::SketchObject", "Sketch004")
body.addObject(sketch5)
sketch5.AttachmentSupport = (doc.XY_Plane, [""])
sketch5.MapMode = "FlatFace"
sketch5.addGeometry(Part.Circle(App.Vector(0, 0, 0), App.Vector(0, 0, 1), 30), False)
sketch5.addGeometry(Part.Circle(App.Vector(0, 0, 0), App.Vector(0, 0, 1), 26), False)
sketch5.addConstraint(Sketcher.Constraint("Coincident", 0, 3, -1, 1))
sketch5.addConstraint(Sketcher.Constraint("Coincident", 1, 3, -1, 1))
sketch5.addConstraint(Sketcher.Constraint("Diameter", 0, Q("60 mm")))
sketch5.addConstraint(Sketcher.Constraint("Diameter", 1, Q("52 mm")))
sketch5.setExpression("Constraints[2]", "Params.sketch5_diameter")
sketch5.setExpression("Constraints[3]", "Params.sketch5_diameter2")
pad3 = doc.addObject("PartDesign::Pad", "Pad002")
body.addObject(pad3)
pad3.Profile = sketch5
pad3.setExpression("Length", "Params.pad3_length")
pad3.Reversed = True
body2 = doc.addObject("PartDesign::Body", "Body001")

# Sketch on XZ plane
sketch6 = doc.addObject("Sketcher::SketchObject", "Sketch005")
body2.addObject(sketch6)
sketch6.AttachmentSupport = (doc.getObject("XZ_Plane001"), [""])
sketch6.MapMode = "FlatFace"
sketch6.addGeometry(Part.LineSegment(App.Vector(-8.5, 200, 0), App.Vector(-8.5, 0, 0)), False)
sketch6.addGeometry(Part.LineSegment(App.Vector(-8.5, 0, 0), App.Vector(-5.5, 0, 0)), False)
sketch6.addGeometry(Part.LineSegment(App.Vector(-5.5, 0, 0), App.Vector(-5.5, -23, 0)), False)
sketch6.addGeometry(Part.LineSegment(App.Vector(-5.5, -23, 0), App.Vector(0, -23, 0)), False)
sketch6.addGeometry(Part.LineSegment(App.Vector(0, -23, 0), App.Vector(0, 200, 0)), False)
sketch6.addGeometry(Part.LineSegment(App.Vector(0, 200, 0), App.Vector(-8.5, 200, 0)), False)
sketch6.addConstraint(Sketcher.Constraint("Coincident", 0, 2, 1, 1))
sketch6.addConstraint(Sketcher.Constraint("Coincident", 1, 2, 2, 1))
sketch6.addConstraint(Sketcher.Constraint("Coincident", 2, 2, 3, 1))
sketch6.addConstraint(Sketcher.Constraint("Coincident", 3, 2, 4, 1))
sketch6.addConstraint(Sketcher.Constraint("Coincident", 4, 2, 5, 1))
sketch6.addConstraint(Sketcher.Constraint("Coincident", 5, 2, 0, 1))
sketch6.addConstraint(Sketcher.Constraint("Vertical", 0))
sketch6.addConstraint(Sketcher.Constraint("Horizontal", 1))
sketch6.addConstraint(Sketcher.Constraint("Vertical", 2))
sketch6.addConstraint(Sketcher.Constraint("Horizontal", 3))
sketch6.addConstraint(Sketcher.Constraint("Vertical", 4))
sketch6.addConstraint(Sketcher.Constraint("Horizontal", 5))
sketch6.addConstraint(Sketcher.Constraint("PointOnObject", 0, 2, -1))
sketch6.addConstraint(Sketcher.Constraint("PointOnObject", 3, 2, -2))
sketch6.addConstraint(Sketcher.Constraint("DistanceX", 1, 1, 1, 2, Q("3 mm")))
sketch6.addConstraint(Sketcher.Constraint("DistanceY", 0, 2, 0, 1, Q("200 mm")))
sketch6.addConstraint(Sketcher.Constraint("DistanceY", 2, 2, 2, 1, Q("23 mm")))
sketch6.addConstraint(Sketcher.Constraint("DistanceX", 3, 1, 3, 2, Q("5.5 mm")))
sketch6.setExpression("Constraints[14]", "Params.sketch6_width")
sketch6.setExpression("Constraints[15]", "Params.sketch6_height")
sketch6.setExpression("Constraints[16]", "Params.sketch6_height2")
sketch6.setExpression("Constraints[17]", "Params.sketch6_width2")
revolution2 = doc.addObject("PartDesign::Revolution", "Revolution001")
body2.addObject(revolution2)
revolution2.Profile = sketch6
revolution2.ReferenceAxis = (sketch6, ["V_Axis"])
revolution2.setExpression("Angle", "Params.revolution2_angle")

# Sketch on XZ plane
sketch7 = doc.addObject("Sketcher::SketchObject", "Sketch006")
body2.addObject(sketch7)
sketch7.AttachmentSupport = (doc.getObject("XZ_Plane001"), [""])
sketch7.MapMode = "FlatFace"
sketch7.AttachmentOffset = App.Placement(App.Vector(0, 0, -5.5), App.Rotation())
sketch7.addGeometry(Part.LineSegment(App.Vector(2, -19, 0), App.Vector(2, -5, 0)), False)
sketch7.addGeometry(Part.ArcOfCircle(Part.Circle(App.Vector(0, -5, 0), App.Vector(0, 0, 1), 2), math.radians(0), math.radians(180)), False)
sketch7.addGeometry(Part.LineSegment(App.Vector(-2, -5, 0), App.Vector(-2, -19, 0)), False)
sketch7.addGeometry(Part.ArcOfCircle(Part.Circle(App.Vector(0, -19, 0), App.Vector(0, 0, 1), 2), math.radians(180), math.radians(360)), False)
sketch7.addConstraint(Sketcher.Constraint("Tangent", 0, 2, 1, 1))
sketch7.addConstraint(Sketcher.Constraint("Tangent", 1, 2, 2, 1))
sketch7.addConstraint(Sketcher.Constraint("Tangent", 2, 2, 3, 1))
sketch7.addConstraint(Sketcher.Constraint("Tangent", 3, 2, 0, 1))
sketch7.addConstraint(Sketcher.Constraint("Vertical", 0))
sketch7.addConstraint(Sketcher.Constraint("Vertical", 2))
sketch7.addConstraint(Sketcher.Constraint("PointOnObject", 1, 3, -2))
sketch7.addConstraint(Sketcher.Constraint("Radius", 1, Q("2 mm")))
sketch7.addConstraint(Sketcher.Constraint("DistanceY", 0, 1, 0, 2, Q("14 mm")))
sketch7.addConstraint(Sketcher.Constraint("DistanceY", 1, 3, -1, 1, Q("5 mm")))
sketch7.setExpression("Constraints[7]", "Params.sketch7_radius")
sketch7.setExpression("Constraints[8]", "Params.sketch7_height")
pocket2 = doc.addObject("PartDesign::Pocket", "Pocket001")
body2.addObject(pocket2)
pocket2.Profile = sketch7
pocket2.setExpression("Length", "Params.pocket2_length")
pocket2.Reversed = True

# Sketch on XY plane
sketch8 = doc.addObject("Sketcher::SketchObject", "Sketch007")
body2.addObject(sketch8)
sketch8.AttachmentSupport = (doc.getObject("XY_Plane001"), [""])
sketch8.MapMode = "FlatFace"
sketch8.AttachmentOffset = App.Placement(App.Vector(0, 0, -23), App.Rotation())
sketch8.addGeometry(Part.Circle(App.Vector(0, 0, 0), App.Vector(0, 0, 1), 2.1), False)
sketch8.addConstraint(Sketcher.Constraint("Coincident", 0, 3, -1, 1))
sketch8.addConstraint(Sketcher.Constraint("Diameter", 0, Q("4.2 mm")))
sketch8.setExpression("Constraints[1]", "Params.sketch8_diameter")
pocket3 = doc.addObject("PartDesign::Pocket", "Pocket002")
body2.addObject(pocket3)
pocket3.Profile = sketch8
pocket3.setExpression("Length", "Params.pocket3_length")
pocket3.Reversed = True
body3 = doc.addObject("PartDesign::Body", "Body002")

# Sketch on XZ plane
sketch9 = doc.addObject("Sketcher::SketchObject", "Sketch008")
body3.addObject(sketch9)
sketch9.AttachmentSupport = (doc.getObject("XZ_Plane002"), [""])
sketch9.MapMode = "FlatFace"
sketch9.AttachmentOffset = App.Placement(App.Vector(0, 0, -5.5), App.Rotation())
sketch9.addGeometry(Part.LineSegment(App.Vector(2, -19, 0), App.Vector(2, -5, 0)), False)
sketch9.addGeometry(Part.ArcOfCircle(Part.Circle(App.Vector(0, -5, 0), App.Vector(0, 0, 1), 2), math.radians(0), math.radians(180)), False)
sketch9.addGeometry(Part.LineSegment(App.Vector(-2, -5, 0), App.Vector(-2, -19, 0)), False)
sketch9.addGeometry(Part.ArcOfCircle(Part.Circle(App.Vector(0, -19, 0), App.Vector(0, 0, 1), 2), math.radians(180), math.radians(360)), False)
sketch9.addConstraint(Sketcher.Constraint("Tangent", 0, 2, 1, 1))
sketch9.addConstraint(Sketcher.Constraint("Tangent", 1, 2, 2, 1))
sketch9.addConstraint(Sketcher.Constraint("Tangent", 2, 2, 3, 1))
sketch9.addConstraint(Sketcher.Constraint("Tangent", 3, 2, 0, 1))
sketch9.addConstraint(Sketcher.Constraint("Vertical", 0))
sketch9.addConstraint(Sketcher.Constraint("Vertical", 2))
sketch9.addConstraint(Sketcher.Constraint("PointOnObject", 1, 3, -2))
sketch9.addConstraint(Sketcher.Constraint("Radius", 1, Q("2 mm")))
sketch9.addConstraint(Sketcher.Constraint("DistanceY", 0, 1, 0, 2, Q("14 mm")))
sketch9.addConstraint(Sketcher.Constraint("DistanceY", 1, 3, -1, 1, Q("5 mm")))
sketch9.setExpression("Constraints[7]", "Params.sketch9_radius")
sketch9.setExpression("Constraints[8]", "Params.sketch9_height")
pad4 = doc.addObject("PartDesign::Pad", "Pad003")
body3.addObject(pad4)
pad4.Profile = sketch9
pad4.Type = "TwoLengths"
pad4.setExpression("Length", "Params.pad4_length")
pad4.setExpression("Length2", "Params.pad4_length2")
pad4.Reversed = True

doc.recompute()
